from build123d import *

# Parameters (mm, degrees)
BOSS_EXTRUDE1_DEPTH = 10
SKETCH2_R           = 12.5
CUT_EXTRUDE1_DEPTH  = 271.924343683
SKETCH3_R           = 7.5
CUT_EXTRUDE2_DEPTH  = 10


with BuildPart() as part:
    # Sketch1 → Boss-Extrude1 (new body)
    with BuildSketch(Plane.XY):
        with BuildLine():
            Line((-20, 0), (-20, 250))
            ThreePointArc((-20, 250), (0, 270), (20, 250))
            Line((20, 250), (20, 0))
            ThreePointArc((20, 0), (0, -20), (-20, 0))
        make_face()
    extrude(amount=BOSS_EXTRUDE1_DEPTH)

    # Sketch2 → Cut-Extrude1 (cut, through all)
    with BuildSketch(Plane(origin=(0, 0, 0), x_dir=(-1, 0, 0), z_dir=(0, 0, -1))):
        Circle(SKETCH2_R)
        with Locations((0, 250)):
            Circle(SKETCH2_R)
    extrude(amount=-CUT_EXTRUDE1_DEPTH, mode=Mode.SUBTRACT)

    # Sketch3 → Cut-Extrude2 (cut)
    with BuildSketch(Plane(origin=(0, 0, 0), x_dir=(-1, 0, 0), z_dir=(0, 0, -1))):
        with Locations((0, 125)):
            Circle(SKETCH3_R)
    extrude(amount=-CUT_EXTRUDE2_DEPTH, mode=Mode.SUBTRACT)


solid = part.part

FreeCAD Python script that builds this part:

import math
import FreeCAD as App
import Part
import Sketcher

V = App.Vector

doc = App.newDocument("Part")
body = doc.addObject("PartDesign::Body", "Body")

# Sketch on XY plane
sketch1 = body.newObject("Sketcher::SketchObject", "Sketch")
sketch1.AttachmentSupport = (doc.getObject("XY_Plane"), [""])
sketch1.MapMode = "FlatFace"
sketch1.addGeometry(Part.LineSegment(V(-20, 250, 0), V(-20, 0, 0)), False)
sketch1.addGeometry(Part.ArcOfCircle(Part.Circle(V(0, 0, 0), V(0, 0, 1), 20), math.radians(180), math.radians(360)), False)
sketch1.addGeometry(Part.LineSegment(V(20, 0, 0), V(20, 250, 0)), False)
sketch1.addGeometry(Part.ArcOfCircle(Part.Circle(V(0, 250, 0), V(0, 0, 1), 20), math.radians(0), math.radians(180)), False)
sketch1.addConstraint(Sketcher.Constraint("Tangent", 0, 2, 1, 1))
sketch1.addConstraint(Sketcher.Constraint("Tangent", 1, 2, 2, 1))
sketch1.addConstraint(Sketcher.Constraint("Tangent", 2, 2, 3, 1))
sketch1.addConstraint(Sketcher.Constraint("Tangent", 3, 2, 0, 1))
sketch1.addConstraint(Sketcher.Constraint("Vertical", 0))
sketch1.addConstraint(Sketcher.Constraint("Vertical", 2))
sketch1.addConstraint(Sketcher.Constraint("Coincident", 1, 3, -1, 1))
sketch1.addConstraint(Sketcher.Constraint("Radius", 1, 20.0))
sketch1.addConstraint(Sketcher.Constraint("DistanceY", 0, 2, 0, 1, 250.0))
pad1 = body.newObject("PartDesign::Pad", "Pad")
pad1.Profile = sketch1
pad1.Length = 10

# Sketch on XY plane
sketch2 = body.newObject("Sketcher::SketchObject", "Sketch001")
sketch2.AttachmentSupport = (doc.getObject("XY_Plane"), [""])
sketch2.MapMode = "FlatFace"
sketch2.addGeometry(Part.Circle(V(0, 0, 0), V(0, 0, 1), 12), False)
sketch2.addGeometry(Part.Circle(V(0, 250, 0), V(0, 0, 1), 12), False)
sketch2.addConstraint(Sketcher.Constraint("Coincident", 0, 3, -1, 1))
sketch2.addConstraint(Sketcher.Constraint("Equal", 0, 1))
sketch2.addConstraint(Sketcher.Constraint("PointOnObject", 1, 3, -2))
sketch2.addConstraint(Sketcher.Constraint("Diameter", 0, 25.0))
sketch2.addConstraint(Sketcher.Constraint("DistanceY", -1, 1, 1, 3, 250.0))
pocket1 = body.newObject("PartDesign::Pocket", "Pocket")
pocket1.Profile = sketch2
pocket1.Type = "ThroughAll"
pocket1.Reversed = True

# Sketch on XY plane
sketch3 = body.newObject("Sketcher::SketchObject", "Sketch002")
sketch3.AttachmentSupport = (doc.getObject("XY_Plane"), [""])
sketch3.MapMode = "FlatFace"
sketch3.addGeometry(Part.Circle(V(0, 125, 0), V(0, 0, 1), 8), False)
sketch3.addConstraint(Sketcher.Constraint("PointOnObject", 0, 3, -2))
sketch3.addConstraint(Sketcher.Constraint("Diameter", 0, 15.0))
sketch3.addConstraint(Sketcher.Constraint("DistanceY", -1, 1, 0, 3, 125.0))
pocket2 = body.newObject("PartDesign::Pocket", "Pocket001")
pocket2.Profile = sketch3
pocket2.Length = 10
pocket2.Reversed = True

doc.recompute()
